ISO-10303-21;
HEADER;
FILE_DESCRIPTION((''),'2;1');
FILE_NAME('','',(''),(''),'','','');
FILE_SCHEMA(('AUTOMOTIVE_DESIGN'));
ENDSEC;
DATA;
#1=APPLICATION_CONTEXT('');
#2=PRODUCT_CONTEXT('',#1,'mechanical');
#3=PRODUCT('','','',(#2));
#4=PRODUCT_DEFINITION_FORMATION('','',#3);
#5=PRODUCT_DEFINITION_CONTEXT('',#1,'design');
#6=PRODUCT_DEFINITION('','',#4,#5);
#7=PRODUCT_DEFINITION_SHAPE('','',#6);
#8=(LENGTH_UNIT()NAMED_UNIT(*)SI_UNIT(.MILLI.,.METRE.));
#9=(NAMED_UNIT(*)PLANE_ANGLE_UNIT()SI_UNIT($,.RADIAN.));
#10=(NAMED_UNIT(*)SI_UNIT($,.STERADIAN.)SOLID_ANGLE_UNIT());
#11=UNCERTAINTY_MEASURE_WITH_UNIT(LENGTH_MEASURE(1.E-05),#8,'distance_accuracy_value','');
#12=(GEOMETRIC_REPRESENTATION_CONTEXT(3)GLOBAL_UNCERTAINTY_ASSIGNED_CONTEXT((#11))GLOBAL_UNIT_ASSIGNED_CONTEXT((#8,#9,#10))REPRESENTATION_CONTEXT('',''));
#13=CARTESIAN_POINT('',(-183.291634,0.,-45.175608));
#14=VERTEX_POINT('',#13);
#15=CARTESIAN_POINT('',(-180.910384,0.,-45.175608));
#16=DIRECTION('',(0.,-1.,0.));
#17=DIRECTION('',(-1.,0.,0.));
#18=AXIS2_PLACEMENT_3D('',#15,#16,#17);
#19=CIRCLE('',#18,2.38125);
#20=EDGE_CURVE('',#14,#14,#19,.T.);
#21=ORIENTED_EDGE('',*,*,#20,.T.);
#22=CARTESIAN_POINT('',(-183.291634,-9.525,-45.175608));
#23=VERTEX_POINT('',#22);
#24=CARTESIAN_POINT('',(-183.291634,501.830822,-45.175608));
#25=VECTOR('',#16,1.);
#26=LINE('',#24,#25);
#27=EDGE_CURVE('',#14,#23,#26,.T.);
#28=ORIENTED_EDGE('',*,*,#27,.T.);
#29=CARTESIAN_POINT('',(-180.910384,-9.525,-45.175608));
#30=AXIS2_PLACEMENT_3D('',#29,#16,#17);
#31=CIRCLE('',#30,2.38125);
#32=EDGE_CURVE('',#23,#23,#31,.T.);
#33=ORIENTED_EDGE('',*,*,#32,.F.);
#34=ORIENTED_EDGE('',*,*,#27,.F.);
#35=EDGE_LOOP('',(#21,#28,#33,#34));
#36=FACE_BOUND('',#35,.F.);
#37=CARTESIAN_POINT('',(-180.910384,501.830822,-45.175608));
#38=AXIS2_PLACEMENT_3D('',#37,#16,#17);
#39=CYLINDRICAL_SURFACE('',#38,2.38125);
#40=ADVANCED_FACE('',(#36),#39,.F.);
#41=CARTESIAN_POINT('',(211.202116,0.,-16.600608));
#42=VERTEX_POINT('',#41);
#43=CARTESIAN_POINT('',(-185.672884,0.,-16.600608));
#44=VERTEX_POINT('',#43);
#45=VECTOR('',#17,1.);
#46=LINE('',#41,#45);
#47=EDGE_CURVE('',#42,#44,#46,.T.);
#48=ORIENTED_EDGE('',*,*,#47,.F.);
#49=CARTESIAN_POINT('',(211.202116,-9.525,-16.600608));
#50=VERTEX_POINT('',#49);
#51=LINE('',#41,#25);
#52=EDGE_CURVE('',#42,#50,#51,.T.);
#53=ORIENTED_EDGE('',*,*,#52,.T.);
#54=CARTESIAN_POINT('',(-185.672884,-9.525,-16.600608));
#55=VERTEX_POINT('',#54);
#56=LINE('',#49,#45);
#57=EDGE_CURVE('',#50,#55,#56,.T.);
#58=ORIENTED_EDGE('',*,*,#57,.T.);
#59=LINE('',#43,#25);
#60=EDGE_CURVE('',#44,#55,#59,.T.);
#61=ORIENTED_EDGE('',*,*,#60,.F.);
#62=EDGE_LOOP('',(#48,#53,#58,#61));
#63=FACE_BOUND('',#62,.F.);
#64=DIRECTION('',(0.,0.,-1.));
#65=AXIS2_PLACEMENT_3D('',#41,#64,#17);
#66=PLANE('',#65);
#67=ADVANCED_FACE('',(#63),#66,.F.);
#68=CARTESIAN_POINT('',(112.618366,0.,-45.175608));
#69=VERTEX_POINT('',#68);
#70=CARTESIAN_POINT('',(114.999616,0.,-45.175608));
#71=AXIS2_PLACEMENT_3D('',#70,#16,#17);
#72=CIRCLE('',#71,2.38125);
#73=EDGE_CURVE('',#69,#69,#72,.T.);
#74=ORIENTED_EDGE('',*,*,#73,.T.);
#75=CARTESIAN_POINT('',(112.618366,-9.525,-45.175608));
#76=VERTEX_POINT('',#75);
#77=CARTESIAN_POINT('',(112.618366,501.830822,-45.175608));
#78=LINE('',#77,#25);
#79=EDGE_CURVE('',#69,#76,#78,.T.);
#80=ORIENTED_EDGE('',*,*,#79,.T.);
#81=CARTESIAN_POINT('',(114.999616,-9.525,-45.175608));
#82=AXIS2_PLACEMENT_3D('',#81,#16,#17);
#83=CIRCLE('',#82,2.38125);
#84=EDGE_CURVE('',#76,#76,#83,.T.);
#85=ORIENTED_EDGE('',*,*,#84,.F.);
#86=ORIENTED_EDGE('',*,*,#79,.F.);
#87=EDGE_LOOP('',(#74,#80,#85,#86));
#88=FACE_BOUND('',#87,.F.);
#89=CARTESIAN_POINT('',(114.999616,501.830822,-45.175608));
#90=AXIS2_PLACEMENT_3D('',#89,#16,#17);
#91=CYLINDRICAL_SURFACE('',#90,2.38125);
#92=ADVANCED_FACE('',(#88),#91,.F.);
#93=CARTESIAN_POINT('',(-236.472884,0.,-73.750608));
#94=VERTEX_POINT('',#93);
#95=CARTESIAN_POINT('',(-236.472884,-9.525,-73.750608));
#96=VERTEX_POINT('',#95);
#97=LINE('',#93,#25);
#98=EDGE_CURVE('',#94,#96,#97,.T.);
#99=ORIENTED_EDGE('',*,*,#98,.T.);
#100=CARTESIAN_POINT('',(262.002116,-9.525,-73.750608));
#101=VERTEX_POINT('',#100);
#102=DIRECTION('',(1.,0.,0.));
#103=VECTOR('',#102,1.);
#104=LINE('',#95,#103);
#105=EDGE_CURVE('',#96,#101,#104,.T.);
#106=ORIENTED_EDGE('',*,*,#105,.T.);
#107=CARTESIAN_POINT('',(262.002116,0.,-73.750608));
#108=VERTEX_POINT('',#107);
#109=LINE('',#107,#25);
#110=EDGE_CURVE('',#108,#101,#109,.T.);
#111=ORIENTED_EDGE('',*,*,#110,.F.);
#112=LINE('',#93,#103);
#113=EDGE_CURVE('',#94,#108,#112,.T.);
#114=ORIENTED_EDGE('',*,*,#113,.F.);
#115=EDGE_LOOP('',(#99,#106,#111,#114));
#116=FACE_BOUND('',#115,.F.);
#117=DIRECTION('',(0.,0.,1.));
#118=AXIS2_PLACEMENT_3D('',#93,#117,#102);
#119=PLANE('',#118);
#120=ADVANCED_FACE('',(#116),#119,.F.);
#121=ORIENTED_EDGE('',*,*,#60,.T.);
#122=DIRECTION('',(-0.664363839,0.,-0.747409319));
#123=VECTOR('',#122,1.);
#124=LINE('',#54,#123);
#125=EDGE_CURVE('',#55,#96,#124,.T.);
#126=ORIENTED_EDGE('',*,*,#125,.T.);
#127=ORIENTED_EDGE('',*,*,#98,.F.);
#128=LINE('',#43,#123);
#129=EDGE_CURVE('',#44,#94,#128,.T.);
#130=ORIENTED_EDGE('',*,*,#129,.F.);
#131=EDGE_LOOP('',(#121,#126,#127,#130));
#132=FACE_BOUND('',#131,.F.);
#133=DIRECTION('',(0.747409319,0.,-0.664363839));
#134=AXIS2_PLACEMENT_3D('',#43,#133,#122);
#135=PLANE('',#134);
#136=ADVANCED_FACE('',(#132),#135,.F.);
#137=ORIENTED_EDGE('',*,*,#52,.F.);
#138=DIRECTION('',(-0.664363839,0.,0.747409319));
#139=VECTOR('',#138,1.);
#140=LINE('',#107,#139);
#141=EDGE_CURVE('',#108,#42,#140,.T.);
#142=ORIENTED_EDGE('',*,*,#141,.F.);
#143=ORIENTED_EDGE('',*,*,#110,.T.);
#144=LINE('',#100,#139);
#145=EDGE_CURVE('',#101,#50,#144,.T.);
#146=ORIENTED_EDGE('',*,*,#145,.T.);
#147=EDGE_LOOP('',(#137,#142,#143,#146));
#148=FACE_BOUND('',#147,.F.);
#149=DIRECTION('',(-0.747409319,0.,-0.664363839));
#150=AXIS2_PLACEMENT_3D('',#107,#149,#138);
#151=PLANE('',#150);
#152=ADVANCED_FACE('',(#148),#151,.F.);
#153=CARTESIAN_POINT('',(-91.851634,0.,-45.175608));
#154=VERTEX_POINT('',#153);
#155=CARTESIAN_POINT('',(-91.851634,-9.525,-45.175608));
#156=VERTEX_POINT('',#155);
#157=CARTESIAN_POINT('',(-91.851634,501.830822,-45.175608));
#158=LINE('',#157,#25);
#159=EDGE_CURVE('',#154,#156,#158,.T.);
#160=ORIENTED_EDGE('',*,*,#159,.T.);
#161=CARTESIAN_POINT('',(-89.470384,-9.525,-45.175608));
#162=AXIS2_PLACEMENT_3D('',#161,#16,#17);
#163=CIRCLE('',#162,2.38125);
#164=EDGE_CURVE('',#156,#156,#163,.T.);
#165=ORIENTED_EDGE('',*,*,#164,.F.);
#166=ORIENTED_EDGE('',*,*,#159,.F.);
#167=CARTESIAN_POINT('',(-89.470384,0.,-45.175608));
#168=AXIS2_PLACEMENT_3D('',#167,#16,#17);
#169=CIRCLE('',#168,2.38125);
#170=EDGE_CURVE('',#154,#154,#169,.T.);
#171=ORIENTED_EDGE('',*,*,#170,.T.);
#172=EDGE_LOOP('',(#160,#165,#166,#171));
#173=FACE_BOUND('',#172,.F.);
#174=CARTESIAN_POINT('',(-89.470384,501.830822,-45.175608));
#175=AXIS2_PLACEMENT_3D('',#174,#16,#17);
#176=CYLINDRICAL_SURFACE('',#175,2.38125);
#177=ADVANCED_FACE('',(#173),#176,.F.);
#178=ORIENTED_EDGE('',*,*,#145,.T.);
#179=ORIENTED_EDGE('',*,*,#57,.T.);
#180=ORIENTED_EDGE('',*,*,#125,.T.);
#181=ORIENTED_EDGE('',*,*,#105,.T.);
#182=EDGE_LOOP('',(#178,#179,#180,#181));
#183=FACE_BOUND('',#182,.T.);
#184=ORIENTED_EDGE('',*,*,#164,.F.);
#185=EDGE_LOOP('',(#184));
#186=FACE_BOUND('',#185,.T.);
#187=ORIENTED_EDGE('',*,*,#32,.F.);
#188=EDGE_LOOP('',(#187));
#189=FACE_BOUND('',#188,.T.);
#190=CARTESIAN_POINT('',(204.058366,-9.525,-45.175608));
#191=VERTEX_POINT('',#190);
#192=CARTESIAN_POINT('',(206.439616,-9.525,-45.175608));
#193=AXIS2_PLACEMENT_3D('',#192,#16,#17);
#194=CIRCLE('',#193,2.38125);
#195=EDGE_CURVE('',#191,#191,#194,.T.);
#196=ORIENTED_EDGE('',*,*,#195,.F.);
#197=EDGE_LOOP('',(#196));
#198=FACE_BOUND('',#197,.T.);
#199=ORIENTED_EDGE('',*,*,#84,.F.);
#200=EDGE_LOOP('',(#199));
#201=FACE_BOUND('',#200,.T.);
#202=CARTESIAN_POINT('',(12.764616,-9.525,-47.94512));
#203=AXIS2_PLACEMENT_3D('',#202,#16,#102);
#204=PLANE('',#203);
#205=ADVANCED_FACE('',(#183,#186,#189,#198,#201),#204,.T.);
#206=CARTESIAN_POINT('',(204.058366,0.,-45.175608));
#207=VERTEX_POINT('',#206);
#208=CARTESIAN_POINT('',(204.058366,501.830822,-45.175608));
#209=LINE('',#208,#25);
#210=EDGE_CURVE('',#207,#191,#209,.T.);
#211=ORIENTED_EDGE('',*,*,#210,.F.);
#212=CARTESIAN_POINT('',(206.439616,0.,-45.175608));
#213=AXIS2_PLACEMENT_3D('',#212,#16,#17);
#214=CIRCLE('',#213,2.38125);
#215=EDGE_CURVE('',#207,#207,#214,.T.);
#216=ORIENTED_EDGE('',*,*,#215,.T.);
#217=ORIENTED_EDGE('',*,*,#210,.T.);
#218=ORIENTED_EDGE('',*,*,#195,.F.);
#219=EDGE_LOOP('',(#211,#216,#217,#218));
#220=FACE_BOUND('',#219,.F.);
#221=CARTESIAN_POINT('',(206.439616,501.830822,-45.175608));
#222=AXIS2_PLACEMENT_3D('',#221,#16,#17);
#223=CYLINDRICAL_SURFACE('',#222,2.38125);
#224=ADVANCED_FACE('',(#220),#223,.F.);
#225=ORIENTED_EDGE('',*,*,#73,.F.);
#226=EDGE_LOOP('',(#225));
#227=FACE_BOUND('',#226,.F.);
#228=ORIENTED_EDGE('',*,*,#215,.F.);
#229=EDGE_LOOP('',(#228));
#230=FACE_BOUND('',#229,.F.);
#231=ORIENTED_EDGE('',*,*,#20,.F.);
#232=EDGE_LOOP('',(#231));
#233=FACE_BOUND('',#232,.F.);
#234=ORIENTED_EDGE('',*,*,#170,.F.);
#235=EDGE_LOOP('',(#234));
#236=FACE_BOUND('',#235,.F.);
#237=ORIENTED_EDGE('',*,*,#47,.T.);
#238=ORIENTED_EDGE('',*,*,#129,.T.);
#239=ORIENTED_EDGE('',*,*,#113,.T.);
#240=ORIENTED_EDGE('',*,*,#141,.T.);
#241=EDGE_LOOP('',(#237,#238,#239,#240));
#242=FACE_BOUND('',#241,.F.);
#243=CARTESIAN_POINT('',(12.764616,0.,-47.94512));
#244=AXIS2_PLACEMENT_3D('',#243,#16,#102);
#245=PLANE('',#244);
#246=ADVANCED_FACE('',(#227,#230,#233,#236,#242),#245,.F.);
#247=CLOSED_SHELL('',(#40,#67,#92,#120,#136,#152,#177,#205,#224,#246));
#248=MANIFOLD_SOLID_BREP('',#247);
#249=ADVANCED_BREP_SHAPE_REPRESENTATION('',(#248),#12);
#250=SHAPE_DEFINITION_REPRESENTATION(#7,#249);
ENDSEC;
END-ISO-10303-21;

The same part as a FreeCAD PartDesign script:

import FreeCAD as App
import Part
import Sketcher

V = App.Vector
Q = App.Units.Quantity


def add_polygon(sketch, points):
    """Adds a closed chain of lines whose ends are joined by coincident constraints."""
    first, n = sketch.GeometryCount, len(points)
    for a, b in zip(points, points[1:] + points[:1]):
        sketch.addGeometry(Part.LineSegment(App.Vector(*a, 0), App.Vector(*b, 0)), False)
    for i in range(n):
        sketch.addConstraint(Sketcher.Constraint("Coincident", first + i, 2, first + (i + 1) % n, 1))

doc = App.newDocument("Part")
params = doc.addObject("Spreadsheet::Sheet", "Params")
for row, (alias, value) in enumerate([
    ("sketch1_width", "15.625 in"),
    ("pad1_length", "0.375 in"),
    ("sketch2_width", "15.625 in"),
    ("pad2_length", "0.375 in"),
    ("sketch3_diameter", "0.1875 in"),
    ("hole_diameter", "0.1875 in"),
    ("sketch4_diameter", "0.1875 in"),
    ("hole2_diameter", "0.1875 in"),
    ("sketch5_diameter", "0.1875 in"),
    ("hole3_diameter", "0.1875 in"),
    ("sketch6_diameter", "0.1875 in"),
    ("hole4_diameter", "0.1875 in"),
], start=1):
    params.set(f"A{row}", alias)
    params.set(f"B{row}", "=" + value)
    params.setAlias(f"B{row}", alias)

body = doc.addObject("PartDesign::Body", "Body")

sketch1 = doc.addObject("Sketcher::SketchObject", "Sketch")
body.addObject(sketch1)
sketch1.AttachmentSupport = (doc.XZ_Plane, [""])
sketch1.MapMode = "FlatFace"
add_polygon(sketch1, [(211.202116, -16.600608), (-185.672884, -16.600608), (-236.472884, -73.750608), (262.002116, -73.750608)])
sketch1.addConstraint(Sketcher.Constraint("Horizontal", 0))
sketch1.addConstraint(Sketcher.Constraint("Horizontal", 2))
sketch1.addConstraint(Sketcher.Constraint("Equal", 1, 3))
sketch1.addConstraint(Sketcher.Constraint("DistanceX", 1, 2, 0, 2, Q("2 in")))
sketch1.addConstraint(Sketcher.Constraint("DistanceX", 0, 2, 0, 1, Q("15.625 in")))
sketch1.addConstraint(Sketcher.Constraint("DistanceY", 1, 2, 0, 2, Q("2.25 in")))
sketch1.addConstraint(Sketcher.Constraint("DistanceX", 0, 2, -1, 1, Q("185.672884 mm")))
sketch1.addConstraint(Sketcher.Constraint("DistanceY", 0, 2, -1, 1, Q("16.600608 mm")))
sketch1.setExpression("Constraints[8]", "Params.sketch1_width")
pad1 = doc.addObject("PartDesign::Pad", "Pad")
body.addObject(pad1)
pad1.Profile = sketch1
pad1.setExpression("Length", "Params.pad1_length")

sketch2 = doc.addObject("Sketcher::SketchObject", "Sketch001")
body.addObject(sketch2)
sketch2.AttachmentSupport = (doc.XZ_Plane, [""])
sketch2.MapMode = "FlatFace"
add_polygon(sketch2, [(211.202116, -16.600608), (-185.672884, -16.600608), (-236.472884, -73.750608), (262.002116, -73.750608)])
sketch2.addConstraint(Sketcher.Constraint("Horizontal", 0))
sketch2.addConstraint(Sketcher.Constraint("Horizontal", 2))
sketch2.addConstraint(Sketcher.Constraint("Equal", 1, 3))
sketch2.addConstraint(Sketcher.Constraint("DistanceX", 1, 2, 0, 2, Q("2 in")))
sketch2.addConstraint(Sketcher.Constraint("DistanceX", 0, 2, 0, 1, Q("15.625 in")))
sketch2.addConstraint(Sketcher.Constraint("DistanceY", 1, 2, 0, 2, Q("2.25 in")))
sketch2.addConstraint(Sketcher.Constraint("DistanceX", 0, 2, -1, 1, Q("185.672884 mm")))
sketch2.addConstraint(Sketcher.Constraint("DistanceY", 0, 2, -1, 1, Q("16.600608 mm")))
sketch2.setExpression("Constraints[8]", "Params.sketch2_width")
pad2 = doc.addObject("PartDesign::Pad", "Pad001")
body.addObject(pad2)
pad2.Profile = sketch2
pad2.setExpression("Length", "Params.pad2_length")

sketch3 = doc.addObject("Sketcher::SketchObject", "Sketch002")
body.addObject(sketch3)
sketch3.AttachmentSupport = (doc.XZ_Plane, [""])
sketch3.MapMode = "FlatFace"
sketch3.addGeometry(Part.Circle(V(114.999616, -45.175608, 0), V(0, 0, 1), 2.38125), False)
sketch3.addConstraint(Sketcher.Constraint("Diameter", 0, Q("0.1875 in")))
sketch3.addConstraint(Sketcher.Constraint("DistanceX", -1, 1, 0, 3, Q("114.999616 mm")))
sketch3.addConstraint(Sketcher.Constraint("DistanceY", 0, 3, -1, 1, Q("45.175608 mm")))
sketch3.setExpression("Constraints[0]", "Params.sketch3_diameter")
doc.recompute()
hole = doc.addObject("PartDesign::Hole", "Hole")
body.addObject(hole)
hole.Profile = sketch3
hole.ThreadType = "None"
hole.setExpression("Diameter", "Params.hole_diameter")
hole.DepthType = "ThroughAll"
hole.Reversed = True

sketch4 = doc.addObject("Sketcher::SketchObject", "Sketch003")
body.addObject(sketch4)
sketch4.AttachmentSupport = (doc.XZ_Plane, [""])
sketch4.MapMode = "FlatFace"
sketch4.addGeometry(Part.Circle(V(-89.470384, -45.175608, 0), V(0, 0, 1), 2.38125), False)
sketch4.addConstraint(Sketcher.Constraint("Diameter", 0, Q("0.1875 in")))
sketch4.addConstraint(Sketcher.Constraint("DistanceX", 0, 3, -1, 1, Q("89.470384 mm")))
sketch4.addConstraint(Sketcher.Constraint("DistanceY", 0, 3, -1, 1, Q("45.175608 mm")))
sketch4.setExpression("Constraints[0]", "Params.sketch4_diameter")
doc.recompute()
hole2 = doc.addObject("PartDesign::Hole", "Hole001")
body.addObject(hole2)
hole2.Profile = sketch4
hole2.ThreadType = "None"
hole2.setExpression("Diameter", "Params.hole2_diameter")
hole2.DepthType = "ThroughAll"
hole2.Reversed = True

sketch5 = doc.addObject("Sketcher::SketchObject", "Sketch004")
body.addObject(sketch5)
sketch5.AttachmentSupport = (doc.XZ_Plane, [""])
sketch5.MapMode = "FlatFace"
sketch5.addGeometry(Part.Circle(V(206.439616, -45.175608, 0), V(0, 0, 1), 2.38125), False)
sketch5.addConstraint(Sketcher.Constraint("Diameter", 0, Q("0.1875 in")))
sketch5.addConstraint(Sketcher.Constraint("DistanceX", -1, 1, 0, 3, Q("206.439616 mm")))
sketch5.addConstraint(Sketcher.Constraint("DistanceY", 0, 3, -1, 1, Q("45.175608 mm")))
sketch5.setExpression("Constraints[0]", "Params.sketch5_diameter")
doc.recompute()
hole3 = doc.addObject("PartDesign::Hole", "Hole002")
body.addObject(hole3)
hole3.Profile = sketch5
hole3.ThreadType = "None"
hole3.setExpression("Diameter", "Params.hole3_diameter")
hole3.DepthType = "ThroughAll"
hole3.Reversed = True

sketch6 = doc.addObject("Sketcher::SketchObject", "Sketch005")
body.addObject(sketch6)
sketch6.AttachmentSupport = (doc.XZ_Plane, [""])
sketch6.MapMode = "FlatFace"
sketch6.addGeometry(Part.Circle(V(-180.910384, -45.175608, 0), V(0, 0, 1), 2.38125), False)
sketch6.addConstraint(Sketcher.Constraint("Diameter", 0, Q("0.1875 in")))
sketch6.addConstraint(Sketcher.Constraint("DistanceX", 0, 3, -1, 1, Q("180.910384 mm")))
sketch6.addConstraint(Sketcher.Constraint("DistanceY", 0, 3, -1, 1, Q("45.175608 mm")))
sketch6.setExpression("Constraints[0]", "Params.sketch6_diameter")
doc.recompute()
hole4 = doc.addObject("PartDesign::Hole", "Hole003")
body.addObject(hole4)
hole4.Profile = sketch6
hole4.ThreadType = "None"
hole4.setExpression("Diameter", "Params.hole4_diameter")
hole4.DepthType = "ThroughAll"
hole4.Reversed = True

doc.recompute()
